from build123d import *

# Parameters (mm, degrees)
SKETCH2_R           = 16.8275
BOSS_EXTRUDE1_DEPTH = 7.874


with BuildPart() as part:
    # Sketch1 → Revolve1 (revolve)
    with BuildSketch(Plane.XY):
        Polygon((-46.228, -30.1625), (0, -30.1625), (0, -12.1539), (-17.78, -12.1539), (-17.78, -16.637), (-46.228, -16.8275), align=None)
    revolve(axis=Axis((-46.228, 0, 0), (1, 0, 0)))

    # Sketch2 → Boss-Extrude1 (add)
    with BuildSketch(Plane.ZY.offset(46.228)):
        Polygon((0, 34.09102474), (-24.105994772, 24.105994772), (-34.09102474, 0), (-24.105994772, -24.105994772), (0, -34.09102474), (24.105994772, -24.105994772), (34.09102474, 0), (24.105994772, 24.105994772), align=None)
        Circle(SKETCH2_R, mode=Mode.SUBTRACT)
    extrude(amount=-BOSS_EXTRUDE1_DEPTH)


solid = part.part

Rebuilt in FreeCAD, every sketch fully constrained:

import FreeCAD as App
import Part
import Sketcher
Q = App.Units.Quantity

doc = App.newDocument("Part")
body = doc.addObject("PartDesign::Body", "Body")

# Sketch on XY plane
sketch1 = body.newObject("Sketcher::SketchObject", "Sketch")
sketch1.AttachmentSupport = (doc.getObject("XY_Plane"), [""])
sketch1.MapMode = "FlatFace"
sketch1.addGeometry(Part.LineSegment(App.Vector(-46.2, -30.2, 0), App.Vector(0, -30.2, 0)), False)
sketch1.addGeometry(Part.LineSegment(App.Vector(0, -30.2, 0), App.Vector(0, -12.2, 0)), False)
sketch1.addGeometry(Part.LineSegment(App.Vector(0, -12.2, 0), App.Vector(-17.8, -12.2, 0)), False)
sketch1.addGeometry(Part.LineSegment(App.Vector(-17.8, -12.2, 0), App.Vector(-17.8, -16.6, 0)), False)
sketch1.addGeometry(Part.LineSegment(App.Vector(-17.8, -16.6, 0), App.Vector(-46.2, -16.8, 0)), False)
sketch1.addGeometry(Part.LineSegment(App.Vector(-46.2, -16.8, 0), App.Vector(-46.2, -30.2, 0)), False)
sketch1.addConstraint(Sketcher.Constraint("Coincident", 0, 2, 1, 1))
sketch1.addConstraint(Sketcher.Constraint("Coincident", 1, 2, 2, 1))
sketch1.addConstraint(Sketcher.Constraint("Coincident", 2, 2, 3, 1))
sketch1.addConstraint(Sketcher.Constraint("Coincident", 3, 2, 4, 1))
sketch1.addConstraint(Sketcher.Constraint("Coincident", 4, 2, 5, 1))
sketch1.addConstraint(Sketcher.Constraint("Coincident", 5, 2, 0, 1))
sketch1.addConstraint(Sketcher.Constraint("Horizontal", 0))
sketch1.addConstraint(Sketcher.Constraint("Vertical", 1))
sketch1.addConstraint(Sketcher.Constraint("Horizontal", 2))
sketch1.addConstraint(Sketcher.Constraint("Vertical", 3))
sketch1.addConstraint(Sketcher.Constraint("Vertical", 5))
sketch1.addConstraint(Sketcher.Constraint("PointOnObject", 0, 2, -2))
sketch1.addConstraint(Sketcher.Constraint("DistanceX", 2, 2, 2, 1, Q("0.7 in")))
sketch1.addConstraint(Sketcher.Constraint("DistanceX", 0, 1, 0, 2, Q("1.82 in")))
sketch1.addConstraint(Sketcher.Constraint("DistanceY", 1, 1, 1, 2, Q("0.709 in")))
sketch1.addConstraint(Sketcher.Constraint("DistanceY", 5, 2, 5, 1, Q("0.525 in")))
sketch1.addConstraint(Sketcher.Constraint("DistanceY", 3, 2, 3, 1, Q("0.1765 in")))
sketch1.addConstraint(Sketcher.Constraint("DistanceY", 0, 2, -1, 1, Q("1.1875 in")))
revolution = body.newObject("PartDesign::Revolution", "Revolution")
revolution.Profile = sketch1
revolution.ReferenceAxis = (sketch1, ["H_Axis"])
revolution.Angle = 360

# Sketch on YZ plane
sketch2 = body.newObject("Sketcher::SketchObject", "Sketch001")
sketch2.AttachmentSupport = (doc.getObject("YZ_Plane"), [""])
sketch2.MapMode = "FlatFace"
sketch2.AttachmentOffset = App.Placement(App.Vector(0, 0, -1.82 * 25.4), App.Rotation())
sketch2.addGeometry(Part.LineSegment(App.Vector(34, 0, 0), App.Vector(24, -24, 0)), False)
sketch2.addGeometry(Part.LineSegment(App.Vector(24, -24, 0), App.Vector(0, -34, 0)), False)
sketch2.addGeometry(Part.LineSegment(App.Vector(0, -34, 0), App.Vector(-24, -24, 0)), False)
sketch2.addGeometry(Part.LineSegment(App.Vector(-24, -24, 0), App.Vector(-34, 0, 0)), False)
sketch2.addGeometry(Part.LineSegment(App.Vector(-34, 0, 0), App.Vector(-24, 24, 0)), False)
sketch2.addGeometry(Part.LineSegment(App.Vector(-24, 24, 0), App.Vector(0, 34, 0)), False)
sketch2.addGeometry(Part.LineSegment(App.Vector(0, 34, 0), App.Vector(24, 24, 0)), False)
sketch2.addGeometry(Part.LineSegment(App.Vector(24, 24, 0), App.Vector(34, 0, 0)), False)
sketch2.addGeometry(Part.Circle(App.Vector(0, 0, 0), App.Vector(0, 0, 1), 17), False)
sketch2.addConstraint(Sketcher.Constraint("Coincident", 0, 2, 1, 1))
sketch2.addConstraint(Sketcher.Constraint("Coincident", 1, 2, 2, 1))
sketch2.addConstraint(Sketcher.Constraint("Coincident", 2, 2, 3, 1))
sketch2.addConstraint(Sketcher.Constraint("Coincident", 3, 2, 4, 1))
sketch2.addConstraint(Sketcher.Constraint("Coincident", 4, 2, 5, 1))
sketch2.addConstraint(Sketcher.Constraint("Coincident", 5, 2, 6, 1))
sketch2.addConstraint(Sketcher.Constraint("Coincident", 6, 2, 7, 1))
sketch2.addConstraint(Sketcher.Constraint("Coincident", 7, 2, 0, 1))
sketch2.addConstraint(Sketcher.Constraint("Coincident", 8, 3, -1, 1))
sketch2.addConstraint(Sketcher.Constraint("Symmetric", 0, 2, 4, 2, -1, 1))
sketch2.addConstraint(Sketcher.Constraint("Symmetric", 1, 2, 5, 2, -1, 1))
sketch2.addConstraint(Sketcher.Constraint("Symmetric", 2, 2, 6, 2, -1, 1))
sketch2.addConstraint(Sketcher.Constraint("Symmetric", 3, 2, 7, 2, -1, 1))
sketch2.addConstraint(Sketcher.Constraint("Symmetric", 0, 2, 2, 2, -2))
sketch2.addConstraint(Sketcher.Constraint("PointOnObject", 1, 2, -2))
sketch2.addConstraint(Sketcher.Constraint("PointOnObject", 3, 2, -1))
sketch2.addConstraint(Sketcher.Constraint("Perpendicular", 0, 2))
sketch2.addConstraint(Sketcher.Constraint("Equal", 0, 1))
sketch2.addConstraint(Sketcher.Constraint("Diameter", 8, Q("1.325 in")))
sketch2.addConstraint(Sketcher.Constraint("Angle", 0, Q("-112.5 deg")))
sketch2.addConstraint(Sketcher.Constraint("Distance", 0, 26.092141))
pad1 = body.newObject("PartDesign::Pad", "Pad")
pad1.Profile = sketch2
pad1.Length = Q("0.31 in")

doc.recompute()
